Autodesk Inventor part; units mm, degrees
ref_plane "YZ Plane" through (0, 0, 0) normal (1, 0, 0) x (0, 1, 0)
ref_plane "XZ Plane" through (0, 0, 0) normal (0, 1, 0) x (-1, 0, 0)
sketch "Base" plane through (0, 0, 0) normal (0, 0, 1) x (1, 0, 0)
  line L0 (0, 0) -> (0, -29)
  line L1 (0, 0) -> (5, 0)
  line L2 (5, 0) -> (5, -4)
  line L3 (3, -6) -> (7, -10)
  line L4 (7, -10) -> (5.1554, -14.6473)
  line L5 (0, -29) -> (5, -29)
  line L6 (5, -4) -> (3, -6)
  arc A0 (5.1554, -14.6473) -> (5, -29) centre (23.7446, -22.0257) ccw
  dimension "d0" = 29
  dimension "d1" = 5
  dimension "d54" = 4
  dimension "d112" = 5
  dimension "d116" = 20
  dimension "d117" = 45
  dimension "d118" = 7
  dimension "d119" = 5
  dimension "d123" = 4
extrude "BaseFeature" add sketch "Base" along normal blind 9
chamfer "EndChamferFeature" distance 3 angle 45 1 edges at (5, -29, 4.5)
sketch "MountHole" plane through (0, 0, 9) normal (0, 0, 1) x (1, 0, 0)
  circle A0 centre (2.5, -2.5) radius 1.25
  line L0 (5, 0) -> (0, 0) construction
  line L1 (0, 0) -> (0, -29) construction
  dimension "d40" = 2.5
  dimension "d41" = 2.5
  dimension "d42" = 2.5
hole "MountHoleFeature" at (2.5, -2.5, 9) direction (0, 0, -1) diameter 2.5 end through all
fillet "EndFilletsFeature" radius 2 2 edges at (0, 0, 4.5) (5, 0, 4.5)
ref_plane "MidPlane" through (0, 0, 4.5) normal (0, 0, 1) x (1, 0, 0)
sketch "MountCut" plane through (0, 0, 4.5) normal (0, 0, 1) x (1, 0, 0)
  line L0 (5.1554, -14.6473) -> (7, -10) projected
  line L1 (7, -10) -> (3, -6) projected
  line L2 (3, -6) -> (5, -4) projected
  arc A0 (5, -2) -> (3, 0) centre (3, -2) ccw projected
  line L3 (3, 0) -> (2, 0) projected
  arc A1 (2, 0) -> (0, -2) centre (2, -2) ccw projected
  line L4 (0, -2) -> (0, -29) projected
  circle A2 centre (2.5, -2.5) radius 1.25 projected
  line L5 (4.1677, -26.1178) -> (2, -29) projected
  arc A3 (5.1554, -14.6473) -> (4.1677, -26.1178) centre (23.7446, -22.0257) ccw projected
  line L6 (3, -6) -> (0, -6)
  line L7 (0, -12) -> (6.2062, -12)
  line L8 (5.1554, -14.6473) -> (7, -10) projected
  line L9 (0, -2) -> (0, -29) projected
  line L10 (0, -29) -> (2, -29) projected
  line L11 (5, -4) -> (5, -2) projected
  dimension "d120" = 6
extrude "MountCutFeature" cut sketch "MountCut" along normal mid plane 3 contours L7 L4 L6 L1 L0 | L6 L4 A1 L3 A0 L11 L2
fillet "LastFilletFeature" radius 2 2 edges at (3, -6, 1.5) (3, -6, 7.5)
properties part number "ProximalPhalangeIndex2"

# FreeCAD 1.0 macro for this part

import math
import FreeCAD as App
import Part
import Sketcher

V = App.Vector
Q = App.Units.Quantity


def edges_at(feature, points):
    """Names of the edges that pass closest to the given points."""
    edges = feature.Shape.Edges
    near = lambda p: min(range(len(edges)), key=lambda i: edges[i].distToShape(Part.Vertex(*p))[0])
    return sorted({f"Edge{near(p) + 1}" for p in points})

doc = App.newDocument("Part")
body = doc.addObject("PartDesign::Body", "Body")

sketch1 = doc.addObject("Sketcher::SketchObject", "Sketch")
body.addObject(sketch1)
sketch1.AttachmentSupport = (doc.XY_Plane, [""])
sketch1.MapMode = "FlatFace"
sketch1.addGeometry(Part.LineSegment(V(5, 0, 0), V(0, 0, 0)), False)
sketch1.addGeometry(Part.LineSegment(V(0, 0, 0), V(0, -29, 0)), False)
sketch1.addGeometry(Part.LineSegment(V(0, -29, 0), V(5, -29, 0)), False)
sketch1.addGeometry(Part.ArcOfCircle(Part.Circle(V(23.7, -22, 0), V(0, 0, 1), 20), math.radians(158), math.radians(200)), False)
sketch1.addGeometry(Part.LineSegment(V(5.2, -14.6, 0), V(7, -10, 0)), False)
sketch1.addGeometry(Part.LineSegment(V(7, -10, 0), V(3, -6, 0)), False)
sketch1.addGeometry(Part.LineSegment(V(3, -6, 0), V(5, -4, 0)), False)
sketch1.addGeometry(Part.LineSegment(V(5, -4, 0), V(5, 0, 0)), False)
sketch1.addConstraint(Sketcher.Constraint("Coincident", 0, 2, 1, 1))
sketch1.addConstraint(Sketcher.Constraint("Coincident", 1, 2, 2, 1))
sketch1.addConstraint(Sketcher.Constraint("Coincident", 2, 2, 3, 2))
sketch1.addConstraint(Sketcher.Constraint("Tangent", 3, 1, 4, 1))
sketch1.addConstraint(Sketcher.Constraint("Coincident", 4, 2, 5, 1))
sketch1.addConstraint(Sketcher.Constraint("Coincident", 5, 2, 6, 1))
sketch1.addConstraint(Sketcher.Constraint("Coincident", 6, 2, 7, 1))
sketch1.addConstraint(Sketcher.Constraint("Coincident", 7, 2, 0, 1))
sketch1.addConstraint(Sketcher.Constraint("Horizontal", 0))
sketch1.addConstraint(Sketcher.Constraint("Vertical", 1))
sketch1.addConstraint(Sketcher.Constraint("Horizontal", 2))
sketch1.addConstraint(Sketcher.Constraint("Vertical", 7))
sketch1.addConstraint(Sketcher.Constraint("Coincident", 0, 2, -1, 1))
sketch1.addConstraint(Sketcher.Constraint("Perpendicular", 5, 6))
sketch1.addConstraint(Sketcher.Constraint("Vertical", 2, 2, 6, 2))
sketch1.addConstraint(Sketcher.Constraint("Radius", 3, 20.0))
sketch1.addConstraint(Sketcher.Constraint("DistanceX", 0, 2, 0, 1, 5.0))
sketch1.addConstraint(Sketcher.Constraint("DistanceY", 1, 2, 1, 1, 29.0))
sketch1.addConstraint(Sketcher.Constraint("DistanceY", 7, 1, 7, 2, 4.0))
sketch1.addConstraint(Sketcher.Constraint("Angle", 6, Q("45 deg")))
sketch1.addConstraint(Sketcher.Constraint("Distance", 4, 5.0))
sketch1.addConstraint(Sketcher.Constraint("DistanceX", -1, 1, 4, 2, 7.0))
sketch1.addConstraint(Sketcher.Constraint("DistanceX", 5, 2, 4, 2, 4.0))
pad1 = doc.addObject("PartDesign::Pad", "Pad")
body.addObject(pad1)
pad1.Profile = sketch1
pad1.Length = 9
doc.recompute()

chamfer = doc.addObject("PartDesign::Chamfer", "Chamfer")
body.addObject(chamfer)
chamfer.Base = (pad1, edges_at(pad1, [(5, -29, 4.5)]))
chamfer.Size = 3

sketch2 = doc.addObject("Sketcher::SketchObject", "Sketch001")
body.addObject(sketch2)
sketch2.AttachmentSupport = (doc.XY_Plane, [""])
sketch2.MapMode = "FlatFace"
sketch2.AttachmentOffset = App.Placement(V(0, 0, 9), App.Rotation())
sketch2.addGeometry(Part.Circle(V(2.5, -2.5, 0), V(0, 0, 1), 1.2), False)
sketch2.addConstraint(Sketcher.Constraint("Diameter", 0, 2.5))
sketch2.addConstraint(Sketcher.Constraint("DistanceX", -1, 1, 0, 3, 2.5))
sketch2.addConstraint(Sketcher.Constraint("DistanceY", 0, 3, -1, 1, 2.5))
doc.recompute()
hole = doc.addObject("PartDesign::Hole", "Hole")
body.addObject(hole)
hole.Profile = sketch2
hole.ThreadType = "None"
hole.Diameter = 2.5
hole.DepthType = "ThroughAll"
doc.recompute()

fillet = doc.addObject("PartDesign::Fillet", "Fillet")
body.addObject(fillet)
fillet.Base = (hole, edges_at(hole, [(0, 0, 4.5), (5, 0, 4.5)]))
fillet.Radius = 2

sketch3 = doc.addObject("Sketcher::SketchObject", "Sketch002")
body.addObject(sketch3)
sketch3.AttachmentSupport = (doc.XY_Plane, [""])
sketch3.MapMode = "FlatFace"
sketch3.AttachmentOffset = App.Placement(V(0, 0, 4.5), App.Rotation())
sketch3.addGeometry(Part.LineSegment(V(0, -12, 0), V(6.2, -12, 0)), False)
sketch3.addGeometry(Part.LineSegment(V(6.2, -12, 0), V(7, -10, 0)), False)
sketch3.addGeometry(Part.LineSegment(V(7, -10, 0), V(3, -6, 0)), False)
sketch3.addGeometry(Part.LineSegment(V(3, -6, 0), V(5, -4, 0)), False)
sketch3.addGeometry(Part.LineSegment(V(5, -4, 0), V(5, -2, 0)), False)
sketch3.addGeometry(Part.ArcOfCircle(Part.Circle(V(3, -2, 0), V(0, 0, 1), 2), math.radians(0), math.radians(90)), False)
sketch3.addGeometry(Part.LineSegment(V(3, 0, 0), V(2, 0, 0)), False)
sketch3.addGeometry(Part.ArcOfCircle(Part.Circle(V(2, -2, 0), V(0, 0, 1), 2), math.radians(90), math.radians(180)), False)
sketch3.addGeometry(Part.LineSegment(V(0, -2, 0), V(0, -12, 0)), False)
sketch3.addGeometry(Part.Circle(V(2.5, -2.5, 0), V(0, 0, 1), 1.2), False)
sketch3.addConstraint(Sketcher.Constraint("Coincident", 0, 2, 1, 1))
sketch3.addConstraint(Sketcher.Constraint("Coincident", 1, 2, 2, 1))
sketch3.addConstraint(Sketcher.Constraint("Coincident", 2, 2, 3, 1))
sketch3.addConstraint(Sketcher.Constraint("Coincident", 3, 2, 4, 1))
sketch3.addConstraint(Sketcher.Constraint("Tangent", 4, 2, 5, 1))
sketch3.addConstraint(Sketcher.Constraint("Tangent", 5, 2, 6, 1))
sketch3.addConstraint(Sketcher.Constraint("Tangent", 6, 2, 7, 1))
sketch3.addConstraint(Sketcher.Constraint("Tangent", 7, 2, 8, 1))
sketch3.addConstraint(Sketcher.Constraint("Coincident", 8, 2, 0, 1))
sketch3.addConstraint(Sketcher.Constraint("Horizontal", 0))
sketch3.addConstraint(Sketcher.Constraint("Vertical", 4))
sketch3.addConstraint(Sketcher.Constraint("Horizontal", 6))
sketch3.addConstraint(Sketcher.Constraint("Vertical", 8))
sketch3.addConstraint(Sketcher.Constraint("Equal", 5, 7))
sketch3.addConstraint(Sketcher.Constraint("PointOnObject", 5, 2, -1))
sketch3.addConstraint(Sketcher.Constraint("PointOnObject", 7, 2, -2))
sketch3.addConstraint(Sketcher.Constraint("Perpendicular", 2, 3))
sketch3.addConstraint(Sketcher.Constraint("Vertical", 5, 3, 2, 2))
sketch3.addConstraint(Sketcher.Constraint("DistanceY", 2, 2, -1, 1, 6.0))
sketch3.addConstraint(Sketcher.Constraint("Radius", 5, 2.0))
sketch3.addConstraint(Sketcher.Constraint("DistanceY", 0, 2, 2, 2, 6.0))
sketch3.addConstraint(Sketcher.Constraint("DistanceY", 1, 2, 3, 2, 6.0))
sketch3.addConstraint(Sketcher.Constraint("Diameter", 9, 2.5))
sketch3.addConstraint(Sketcher.Constraint("DistanceX", 6, 2, 6, 1, 1.0))
sketch3.addConstraint(Sketcher.Constraint("DistanceY", 4, 1, 4, 2, 2.0))
sketch3.addConstraint(Sketcher.Constraint("DistanceX", -1, 1, 9, 3, 2.5))
sketch3.addConstraint(Sketcher.Constraint("DistanceY", 9, 3, -1, 1, 2.5))
sketch3.addConstraint(Sketcher.Constraint("Angle", 1, Q("68.351 deg")))
pocket1 = doc.addObject("PartDesign::Pocket", "Pocket")
body.addObject(pocket1)
pocket1.Profile = sketch3
pocket1.Length = 3
pocket1.Midplane = True
doc.recompute()

fillet2 = doc.addObject("PartDesign::Fillet", "Fillet001")
body.addObject(fillet2)
fillet2.Base = (pocket1, edges_at(pocket1, [(3, -6, 1.5), (3, -6, 7.5)]))
fillet2.Radius = 2

doc.recompute()
